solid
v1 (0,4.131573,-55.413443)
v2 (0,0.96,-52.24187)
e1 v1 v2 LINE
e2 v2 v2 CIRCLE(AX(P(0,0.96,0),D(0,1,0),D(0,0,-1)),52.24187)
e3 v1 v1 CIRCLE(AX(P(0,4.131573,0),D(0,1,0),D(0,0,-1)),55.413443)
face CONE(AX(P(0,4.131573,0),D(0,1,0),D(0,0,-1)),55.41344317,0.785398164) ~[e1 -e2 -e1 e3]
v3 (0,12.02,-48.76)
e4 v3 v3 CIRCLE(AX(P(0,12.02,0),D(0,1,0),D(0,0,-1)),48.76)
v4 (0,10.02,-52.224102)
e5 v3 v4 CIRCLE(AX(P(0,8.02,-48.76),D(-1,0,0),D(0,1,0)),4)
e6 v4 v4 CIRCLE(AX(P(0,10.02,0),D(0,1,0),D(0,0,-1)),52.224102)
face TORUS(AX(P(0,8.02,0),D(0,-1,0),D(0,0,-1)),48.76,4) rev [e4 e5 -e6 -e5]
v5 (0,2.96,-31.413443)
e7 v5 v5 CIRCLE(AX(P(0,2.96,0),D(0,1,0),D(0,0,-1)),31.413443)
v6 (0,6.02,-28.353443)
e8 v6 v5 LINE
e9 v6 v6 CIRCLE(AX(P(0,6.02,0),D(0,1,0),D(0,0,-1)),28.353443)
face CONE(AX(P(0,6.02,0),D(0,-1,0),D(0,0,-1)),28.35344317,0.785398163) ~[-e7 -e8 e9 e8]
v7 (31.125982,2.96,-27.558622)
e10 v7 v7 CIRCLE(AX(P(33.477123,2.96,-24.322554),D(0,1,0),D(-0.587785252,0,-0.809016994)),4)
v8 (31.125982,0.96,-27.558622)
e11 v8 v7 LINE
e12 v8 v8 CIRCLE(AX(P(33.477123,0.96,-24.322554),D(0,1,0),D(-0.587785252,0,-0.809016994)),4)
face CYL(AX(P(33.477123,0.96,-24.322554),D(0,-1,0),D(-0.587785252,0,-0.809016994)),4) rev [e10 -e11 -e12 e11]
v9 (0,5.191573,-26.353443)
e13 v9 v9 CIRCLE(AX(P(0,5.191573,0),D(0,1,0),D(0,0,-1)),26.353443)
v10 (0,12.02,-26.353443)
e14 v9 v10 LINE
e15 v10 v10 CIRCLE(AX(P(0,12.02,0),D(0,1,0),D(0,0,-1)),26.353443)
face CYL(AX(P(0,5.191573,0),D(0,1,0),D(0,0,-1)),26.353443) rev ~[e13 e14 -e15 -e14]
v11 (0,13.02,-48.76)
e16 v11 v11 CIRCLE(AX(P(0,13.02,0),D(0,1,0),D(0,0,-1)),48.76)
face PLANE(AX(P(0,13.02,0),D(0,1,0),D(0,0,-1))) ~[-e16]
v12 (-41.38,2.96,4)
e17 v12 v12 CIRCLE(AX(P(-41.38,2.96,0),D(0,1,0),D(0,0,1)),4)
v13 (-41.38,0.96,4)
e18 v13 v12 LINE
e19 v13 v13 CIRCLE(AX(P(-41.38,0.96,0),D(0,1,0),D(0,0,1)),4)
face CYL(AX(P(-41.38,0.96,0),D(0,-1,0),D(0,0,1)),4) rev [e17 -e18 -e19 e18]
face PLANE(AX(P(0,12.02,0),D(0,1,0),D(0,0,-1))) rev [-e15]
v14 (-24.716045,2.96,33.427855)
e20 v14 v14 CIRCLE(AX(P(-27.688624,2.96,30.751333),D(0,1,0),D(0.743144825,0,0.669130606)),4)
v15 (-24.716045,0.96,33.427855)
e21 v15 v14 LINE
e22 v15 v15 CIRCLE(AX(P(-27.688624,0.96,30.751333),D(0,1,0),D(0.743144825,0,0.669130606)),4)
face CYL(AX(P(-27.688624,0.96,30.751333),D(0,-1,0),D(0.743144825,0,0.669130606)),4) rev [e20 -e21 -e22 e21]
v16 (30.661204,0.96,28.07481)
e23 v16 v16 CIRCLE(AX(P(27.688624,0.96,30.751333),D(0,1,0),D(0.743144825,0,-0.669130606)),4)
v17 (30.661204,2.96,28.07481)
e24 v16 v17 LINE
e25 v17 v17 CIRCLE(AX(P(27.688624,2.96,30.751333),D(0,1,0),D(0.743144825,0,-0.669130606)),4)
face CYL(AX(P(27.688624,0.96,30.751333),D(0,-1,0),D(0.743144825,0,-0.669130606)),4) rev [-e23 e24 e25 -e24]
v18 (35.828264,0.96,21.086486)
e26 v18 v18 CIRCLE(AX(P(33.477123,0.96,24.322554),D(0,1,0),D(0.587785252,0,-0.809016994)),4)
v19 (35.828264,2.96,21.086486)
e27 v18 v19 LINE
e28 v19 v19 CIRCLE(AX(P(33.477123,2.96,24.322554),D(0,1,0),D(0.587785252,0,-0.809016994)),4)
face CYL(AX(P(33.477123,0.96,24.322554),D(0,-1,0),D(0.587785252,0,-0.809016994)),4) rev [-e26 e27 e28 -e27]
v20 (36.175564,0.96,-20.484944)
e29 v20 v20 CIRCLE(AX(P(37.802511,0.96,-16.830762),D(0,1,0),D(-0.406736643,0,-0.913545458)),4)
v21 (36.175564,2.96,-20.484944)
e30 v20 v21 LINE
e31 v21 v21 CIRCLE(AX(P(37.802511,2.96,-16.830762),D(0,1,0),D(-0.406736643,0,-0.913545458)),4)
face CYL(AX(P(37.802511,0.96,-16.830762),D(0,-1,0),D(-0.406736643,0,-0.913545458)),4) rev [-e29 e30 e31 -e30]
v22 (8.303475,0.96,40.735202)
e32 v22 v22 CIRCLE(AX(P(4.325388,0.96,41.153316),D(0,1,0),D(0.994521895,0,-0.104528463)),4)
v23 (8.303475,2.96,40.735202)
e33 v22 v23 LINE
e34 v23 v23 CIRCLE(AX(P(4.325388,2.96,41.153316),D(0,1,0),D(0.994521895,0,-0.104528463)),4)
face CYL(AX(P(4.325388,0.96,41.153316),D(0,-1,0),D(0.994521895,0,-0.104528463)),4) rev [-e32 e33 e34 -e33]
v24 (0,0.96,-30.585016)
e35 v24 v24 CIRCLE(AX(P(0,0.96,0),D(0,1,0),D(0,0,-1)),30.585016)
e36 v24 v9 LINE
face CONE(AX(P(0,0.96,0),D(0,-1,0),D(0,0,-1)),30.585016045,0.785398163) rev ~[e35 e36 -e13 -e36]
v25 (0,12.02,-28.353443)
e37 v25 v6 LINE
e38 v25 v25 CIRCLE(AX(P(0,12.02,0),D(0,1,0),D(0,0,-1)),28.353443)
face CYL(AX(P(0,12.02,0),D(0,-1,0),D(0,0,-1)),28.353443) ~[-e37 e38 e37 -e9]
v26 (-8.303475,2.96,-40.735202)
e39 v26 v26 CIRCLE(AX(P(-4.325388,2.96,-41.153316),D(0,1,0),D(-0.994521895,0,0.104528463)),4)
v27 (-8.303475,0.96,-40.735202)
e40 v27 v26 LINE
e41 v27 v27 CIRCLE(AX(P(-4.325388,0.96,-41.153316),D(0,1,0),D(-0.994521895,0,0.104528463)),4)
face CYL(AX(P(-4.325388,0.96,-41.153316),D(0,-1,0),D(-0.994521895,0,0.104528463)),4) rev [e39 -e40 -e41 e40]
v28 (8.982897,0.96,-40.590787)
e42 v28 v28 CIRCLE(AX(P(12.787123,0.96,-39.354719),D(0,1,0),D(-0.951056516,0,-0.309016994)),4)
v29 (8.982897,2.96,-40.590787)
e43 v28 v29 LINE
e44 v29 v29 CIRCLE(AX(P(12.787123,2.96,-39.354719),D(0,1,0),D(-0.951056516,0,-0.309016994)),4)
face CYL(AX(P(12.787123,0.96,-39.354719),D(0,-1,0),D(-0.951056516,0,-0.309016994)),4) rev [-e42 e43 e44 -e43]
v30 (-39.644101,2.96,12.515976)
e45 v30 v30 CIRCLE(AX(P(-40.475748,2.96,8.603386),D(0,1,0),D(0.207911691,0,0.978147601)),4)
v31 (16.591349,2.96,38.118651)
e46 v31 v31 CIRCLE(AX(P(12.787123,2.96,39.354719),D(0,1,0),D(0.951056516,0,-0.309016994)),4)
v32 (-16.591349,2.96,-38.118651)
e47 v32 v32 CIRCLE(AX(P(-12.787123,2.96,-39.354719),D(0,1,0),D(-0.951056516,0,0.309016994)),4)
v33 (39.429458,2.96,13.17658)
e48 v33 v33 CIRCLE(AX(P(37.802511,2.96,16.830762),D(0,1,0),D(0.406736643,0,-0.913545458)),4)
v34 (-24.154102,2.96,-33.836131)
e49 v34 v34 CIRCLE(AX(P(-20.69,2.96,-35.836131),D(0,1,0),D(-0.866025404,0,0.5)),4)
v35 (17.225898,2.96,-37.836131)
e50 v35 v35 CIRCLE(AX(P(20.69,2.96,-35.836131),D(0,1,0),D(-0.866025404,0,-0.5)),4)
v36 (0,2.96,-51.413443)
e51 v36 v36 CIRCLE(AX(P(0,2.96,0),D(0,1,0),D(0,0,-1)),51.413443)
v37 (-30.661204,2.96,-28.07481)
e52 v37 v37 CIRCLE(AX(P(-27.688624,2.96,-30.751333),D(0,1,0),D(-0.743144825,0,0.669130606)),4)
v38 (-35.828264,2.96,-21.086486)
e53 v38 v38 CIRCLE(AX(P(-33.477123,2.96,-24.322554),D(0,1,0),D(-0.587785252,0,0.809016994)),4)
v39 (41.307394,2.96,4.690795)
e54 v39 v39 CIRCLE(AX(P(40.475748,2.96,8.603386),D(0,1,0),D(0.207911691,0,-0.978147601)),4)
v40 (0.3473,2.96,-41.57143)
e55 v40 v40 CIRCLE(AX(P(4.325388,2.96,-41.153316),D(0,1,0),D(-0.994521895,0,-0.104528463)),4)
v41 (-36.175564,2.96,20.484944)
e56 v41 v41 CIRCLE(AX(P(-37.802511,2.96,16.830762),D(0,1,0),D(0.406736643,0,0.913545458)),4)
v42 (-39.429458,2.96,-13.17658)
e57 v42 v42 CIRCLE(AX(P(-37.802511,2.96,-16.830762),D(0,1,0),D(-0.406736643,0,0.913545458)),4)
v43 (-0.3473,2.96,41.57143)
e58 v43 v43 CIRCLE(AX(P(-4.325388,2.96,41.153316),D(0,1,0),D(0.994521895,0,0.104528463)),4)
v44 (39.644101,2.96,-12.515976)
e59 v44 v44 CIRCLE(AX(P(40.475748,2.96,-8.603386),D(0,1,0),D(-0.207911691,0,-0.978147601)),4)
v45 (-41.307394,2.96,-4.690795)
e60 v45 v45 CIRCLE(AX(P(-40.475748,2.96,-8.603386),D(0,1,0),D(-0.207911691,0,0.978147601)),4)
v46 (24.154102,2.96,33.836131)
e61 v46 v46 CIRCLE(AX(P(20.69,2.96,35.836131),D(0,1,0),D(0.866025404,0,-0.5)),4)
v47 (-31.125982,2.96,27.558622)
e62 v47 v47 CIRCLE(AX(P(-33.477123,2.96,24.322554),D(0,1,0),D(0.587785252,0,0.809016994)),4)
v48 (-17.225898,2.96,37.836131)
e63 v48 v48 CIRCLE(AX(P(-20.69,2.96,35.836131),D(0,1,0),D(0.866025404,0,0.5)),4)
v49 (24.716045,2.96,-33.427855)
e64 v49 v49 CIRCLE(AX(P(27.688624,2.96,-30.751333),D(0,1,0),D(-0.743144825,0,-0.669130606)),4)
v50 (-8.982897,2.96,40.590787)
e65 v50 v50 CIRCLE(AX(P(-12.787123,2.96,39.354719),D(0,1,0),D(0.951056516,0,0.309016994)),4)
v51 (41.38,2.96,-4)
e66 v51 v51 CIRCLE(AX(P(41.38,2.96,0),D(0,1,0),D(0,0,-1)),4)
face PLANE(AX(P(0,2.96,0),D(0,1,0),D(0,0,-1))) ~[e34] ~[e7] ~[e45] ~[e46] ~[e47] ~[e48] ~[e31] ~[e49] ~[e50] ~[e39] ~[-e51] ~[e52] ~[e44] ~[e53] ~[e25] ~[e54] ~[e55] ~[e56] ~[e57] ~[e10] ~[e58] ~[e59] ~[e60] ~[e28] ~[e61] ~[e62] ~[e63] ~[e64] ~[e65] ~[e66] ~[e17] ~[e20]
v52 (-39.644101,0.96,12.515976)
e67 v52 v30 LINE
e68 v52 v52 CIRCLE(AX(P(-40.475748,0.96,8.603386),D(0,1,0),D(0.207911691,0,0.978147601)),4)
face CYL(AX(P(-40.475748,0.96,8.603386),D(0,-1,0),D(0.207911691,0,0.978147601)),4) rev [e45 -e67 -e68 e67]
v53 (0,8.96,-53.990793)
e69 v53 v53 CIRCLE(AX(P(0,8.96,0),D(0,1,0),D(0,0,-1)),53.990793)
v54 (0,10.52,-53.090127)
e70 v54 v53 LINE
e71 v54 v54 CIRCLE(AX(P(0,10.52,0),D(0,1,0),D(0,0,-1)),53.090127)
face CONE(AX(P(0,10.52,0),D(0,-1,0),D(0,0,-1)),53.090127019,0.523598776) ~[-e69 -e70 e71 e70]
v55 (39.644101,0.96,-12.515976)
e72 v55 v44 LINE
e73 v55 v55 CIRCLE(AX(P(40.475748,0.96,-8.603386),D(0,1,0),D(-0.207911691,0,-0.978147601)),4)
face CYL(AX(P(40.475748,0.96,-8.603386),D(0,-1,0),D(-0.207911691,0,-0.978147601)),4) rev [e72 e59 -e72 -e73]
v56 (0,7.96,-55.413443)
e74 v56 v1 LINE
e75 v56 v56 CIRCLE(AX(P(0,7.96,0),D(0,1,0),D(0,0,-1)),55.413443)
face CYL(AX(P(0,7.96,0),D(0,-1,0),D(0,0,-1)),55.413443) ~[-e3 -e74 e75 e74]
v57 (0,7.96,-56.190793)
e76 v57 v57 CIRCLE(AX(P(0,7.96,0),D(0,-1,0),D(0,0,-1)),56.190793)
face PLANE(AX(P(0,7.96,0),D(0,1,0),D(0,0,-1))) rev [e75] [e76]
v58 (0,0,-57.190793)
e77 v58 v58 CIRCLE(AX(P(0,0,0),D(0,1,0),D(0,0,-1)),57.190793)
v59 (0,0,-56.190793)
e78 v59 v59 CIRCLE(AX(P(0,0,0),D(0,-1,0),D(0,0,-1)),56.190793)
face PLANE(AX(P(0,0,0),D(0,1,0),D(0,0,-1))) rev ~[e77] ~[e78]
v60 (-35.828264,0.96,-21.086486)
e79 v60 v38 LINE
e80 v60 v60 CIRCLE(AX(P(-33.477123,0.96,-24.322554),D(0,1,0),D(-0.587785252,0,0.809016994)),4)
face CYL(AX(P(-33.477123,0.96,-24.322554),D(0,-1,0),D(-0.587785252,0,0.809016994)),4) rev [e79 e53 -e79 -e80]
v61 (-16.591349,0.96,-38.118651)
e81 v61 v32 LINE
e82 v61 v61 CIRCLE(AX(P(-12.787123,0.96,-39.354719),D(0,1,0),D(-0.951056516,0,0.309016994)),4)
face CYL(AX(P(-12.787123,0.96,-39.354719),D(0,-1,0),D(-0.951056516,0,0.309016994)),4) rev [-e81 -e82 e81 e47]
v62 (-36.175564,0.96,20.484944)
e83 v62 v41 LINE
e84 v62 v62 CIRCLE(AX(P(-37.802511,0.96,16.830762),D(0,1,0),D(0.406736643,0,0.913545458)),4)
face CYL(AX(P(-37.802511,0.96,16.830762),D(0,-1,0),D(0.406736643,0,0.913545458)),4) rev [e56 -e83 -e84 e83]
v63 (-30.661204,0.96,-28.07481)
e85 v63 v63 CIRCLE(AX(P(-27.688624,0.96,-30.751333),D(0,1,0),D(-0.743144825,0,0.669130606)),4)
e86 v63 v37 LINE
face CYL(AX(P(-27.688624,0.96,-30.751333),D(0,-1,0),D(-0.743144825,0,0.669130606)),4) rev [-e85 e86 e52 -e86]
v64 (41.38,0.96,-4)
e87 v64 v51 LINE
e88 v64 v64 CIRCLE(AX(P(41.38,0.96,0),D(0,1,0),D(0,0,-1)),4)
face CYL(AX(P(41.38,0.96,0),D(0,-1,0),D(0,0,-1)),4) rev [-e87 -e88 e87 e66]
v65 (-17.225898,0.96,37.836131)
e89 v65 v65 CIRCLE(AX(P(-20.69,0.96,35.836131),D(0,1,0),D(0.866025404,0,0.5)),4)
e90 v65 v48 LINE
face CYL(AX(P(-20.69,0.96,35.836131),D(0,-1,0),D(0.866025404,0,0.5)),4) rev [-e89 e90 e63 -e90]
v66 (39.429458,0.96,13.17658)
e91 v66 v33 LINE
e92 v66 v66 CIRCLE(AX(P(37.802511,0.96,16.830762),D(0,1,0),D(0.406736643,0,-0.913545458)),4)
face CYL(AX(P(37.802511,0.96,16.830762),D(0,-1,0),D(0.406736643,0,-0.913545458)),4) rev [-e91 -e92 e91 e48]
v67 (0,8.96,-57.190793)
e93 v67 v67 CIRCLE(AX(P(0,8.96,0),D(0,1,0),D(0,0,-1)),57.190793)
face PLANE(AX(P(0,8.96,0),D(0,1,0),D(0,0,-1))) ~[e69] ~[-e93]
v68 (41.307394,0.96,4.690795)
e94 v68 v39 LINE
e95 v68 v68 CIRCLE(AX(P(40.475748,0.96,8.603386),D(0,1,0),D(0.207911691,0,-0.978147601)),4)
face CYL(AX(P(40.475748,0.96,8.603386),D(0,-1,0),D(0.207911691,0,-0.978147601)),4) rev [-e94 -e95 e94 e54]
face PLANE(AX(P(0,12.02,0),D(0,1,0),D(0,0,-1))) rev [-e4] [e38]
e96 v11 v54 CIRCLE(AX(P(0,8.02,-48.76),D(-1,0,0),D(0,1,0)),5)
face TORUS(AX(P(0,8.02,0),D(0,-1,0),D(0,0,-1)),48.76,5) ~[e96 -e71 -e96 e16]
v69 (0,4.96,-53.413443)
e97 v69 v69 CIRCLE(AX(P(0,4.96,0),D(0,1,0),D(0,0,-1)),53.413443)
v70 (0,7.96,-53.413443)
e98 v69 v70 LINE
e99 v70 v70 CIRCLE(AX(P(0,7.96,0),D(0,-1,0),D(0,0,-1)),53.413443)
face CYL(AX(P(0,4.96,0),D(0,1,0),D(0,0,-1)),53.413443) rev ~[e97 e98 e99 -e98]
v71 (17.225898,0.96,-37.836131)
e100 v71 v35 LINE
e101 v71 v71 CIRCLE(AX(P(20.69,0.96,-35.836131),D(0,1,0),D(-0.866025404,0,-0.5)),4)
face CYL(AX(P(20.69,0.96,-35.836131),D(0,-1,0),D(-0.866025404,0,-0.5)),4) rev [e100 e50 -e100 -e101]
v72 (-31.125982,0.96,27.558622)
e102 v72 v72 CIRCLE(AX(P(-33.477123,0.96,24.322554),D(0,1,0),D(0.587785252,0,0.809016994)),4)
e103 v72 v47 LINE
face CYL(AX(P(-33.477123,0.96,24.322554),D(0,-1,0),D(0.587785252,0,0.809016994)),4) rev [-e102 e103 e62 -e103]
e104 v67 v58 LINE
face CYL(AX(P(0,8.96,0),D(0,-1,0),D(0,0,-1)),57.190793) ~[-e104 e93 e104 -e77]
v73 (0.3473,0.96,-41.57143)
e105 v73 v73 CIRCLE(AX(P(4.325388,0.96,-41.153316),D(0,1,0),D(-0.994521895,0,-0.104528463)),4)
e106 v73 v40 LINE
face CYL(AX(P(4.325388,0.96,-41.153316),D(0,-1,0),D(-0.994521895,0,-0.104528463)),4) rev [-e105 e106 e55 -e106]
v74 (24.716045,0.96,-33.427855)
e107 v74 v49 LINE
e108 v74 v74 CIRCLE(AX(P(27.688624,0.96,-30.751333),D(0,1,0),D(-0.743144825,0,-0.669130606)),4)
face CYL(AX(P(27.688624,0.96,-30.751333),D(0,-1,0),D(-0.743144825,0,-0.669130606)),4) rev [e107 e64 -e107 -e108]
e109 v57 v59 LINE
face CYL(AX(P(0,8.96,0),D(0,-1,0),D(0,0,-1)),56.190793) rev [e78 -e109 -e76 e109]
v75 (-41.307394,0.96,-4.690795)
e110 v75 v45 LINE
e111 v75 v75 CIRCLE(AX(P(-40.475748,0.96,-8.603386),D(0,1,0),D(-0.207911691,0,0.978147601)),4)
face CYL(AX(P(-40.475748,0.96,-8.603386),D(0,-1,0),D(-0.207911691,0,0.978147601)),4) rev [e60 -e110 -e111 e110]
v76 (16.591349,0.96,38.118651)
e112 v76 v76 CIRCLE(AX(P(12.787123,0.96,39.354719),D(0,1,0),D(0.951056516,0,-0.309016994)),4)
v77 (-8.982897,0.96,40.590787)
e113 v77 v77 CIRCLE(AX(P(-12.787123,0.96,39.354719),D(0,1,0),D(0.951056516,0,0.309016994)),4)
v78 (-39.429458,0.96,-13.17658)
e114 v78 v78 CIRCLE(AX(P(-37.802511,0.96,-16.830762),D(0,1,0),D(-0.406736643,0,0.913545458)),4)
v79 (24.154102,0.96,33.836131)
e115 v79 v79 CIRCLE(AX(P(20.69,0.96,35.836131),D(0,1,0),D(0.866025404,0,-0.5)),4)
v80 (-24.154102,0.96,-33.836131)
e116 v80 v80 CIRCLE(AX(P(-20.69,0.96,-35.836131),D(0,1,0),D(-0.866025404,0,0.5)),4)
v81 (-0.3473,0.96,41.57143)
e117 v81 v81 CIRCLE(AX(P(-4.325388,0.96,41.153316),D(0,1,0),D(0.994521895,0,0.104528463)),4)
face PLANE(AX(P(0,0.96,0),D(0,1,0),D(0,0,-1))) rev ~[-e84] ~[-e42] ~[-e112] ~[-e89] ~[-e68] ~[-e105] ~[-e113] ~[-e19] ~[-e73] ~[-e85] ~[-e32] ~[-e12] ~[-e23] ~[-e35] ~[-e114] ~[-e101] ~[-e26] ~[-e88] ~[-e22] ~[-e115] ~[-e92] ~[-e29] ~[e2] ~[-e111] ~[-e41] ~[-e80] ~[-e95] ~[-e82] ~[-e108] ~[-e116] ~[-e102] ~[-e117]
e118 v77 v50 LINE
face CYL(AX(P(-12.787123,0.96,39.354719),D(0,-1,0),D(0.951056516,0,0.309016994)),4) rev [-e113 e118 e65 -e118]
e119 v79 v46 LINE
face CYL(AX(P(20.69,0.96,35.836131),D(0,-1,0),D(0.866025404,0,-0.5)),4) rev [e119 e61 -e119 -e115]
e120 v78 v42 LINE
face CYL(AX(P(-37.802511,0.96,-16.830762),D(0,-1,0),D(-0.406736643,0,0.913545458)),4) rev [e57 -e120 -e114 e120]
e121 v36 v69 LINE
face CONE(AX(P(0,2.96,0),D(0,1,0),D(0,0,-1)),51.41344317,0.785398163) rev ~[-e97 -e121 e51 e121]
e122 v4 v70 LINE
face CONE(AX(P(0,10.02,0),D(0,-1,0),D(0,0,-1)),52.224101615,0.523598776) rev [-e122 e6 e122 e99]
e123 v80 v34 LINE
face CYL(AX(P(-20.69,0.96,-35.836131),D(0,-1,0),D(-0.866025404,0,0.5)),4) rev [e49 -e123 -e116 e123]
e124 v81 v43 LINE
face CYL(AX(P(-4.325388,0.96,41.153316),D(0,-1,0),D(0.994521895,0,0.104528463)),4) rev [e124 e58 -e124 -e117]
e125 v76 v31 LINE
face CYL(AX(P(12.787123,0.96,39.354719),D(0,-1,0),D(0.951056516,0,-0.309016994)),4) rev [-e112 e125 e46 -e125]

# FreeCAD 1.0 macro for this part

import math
import FreeCAD as App
import Part
import Sketcher
Q = App.Units.Quantity


def faces_at(feature, points):
    """Names of the faces that lie closest to the given points."""
    faces = feature.Shape.Faces
    near = lambda p: min(range(len(faces)), key=lambda i: faces[i].distToShape(Part.Vertex(*p))[0])
    return sorted({f"Face{near(p) + 1}" for p in points})


def add_polygon(sketch, points):
    """Adds a closed chain of lines whose ends are joined by coincident constraints."""
    first, n = sketch.GeometryCount, len(points)
    for a, b in zip(points, points[1:] + points[:1]):
        sketch.addGeometry(Part.LineSegment(App.Vector(*a, 0), App.Vector(*b, 0)), False)
    for i in range(n):
        sketch.addConstraint(Sketcher.Constraint("Coincident", first + i, 2, first + (i + 1) % n, 1))

doc = App.newDocument("Part")
body = doc.addObject("PartDesign::Body", "Body")

# Sketch on YZ plane
sketch1 = doc.addObject("Sketcher::SketchObject", "Sketch")
body.addObject(sketch1)
sketch1.AttachmentSupport = (doc.YZ_Plane, [""])
sketch1.MapMode = "FlatFace"
sketch1.addGeometry([
    Part.LineSegment(App.Vector(0, 0, 0), App.Vector(13.02, 0, 0)),  # 0
    Part.LineSegment(App.Vector(13.02, 0, 0), App.Vector(13.02, 48.76, 0)),  # 1
    Part.ArcOfCircle(Part.Circle(App.Vector(8.02, 48.76, 0), App.Vector(0, 0, 1), 5), math.radians(0), math.radians(60)),  # 2
    Part.LineSegment(App.Vector(10.52, 53.090127, 0), App.Vector(8.96, 53.990793, 0)),  # 3
    Part.LineSegment(App.Vector(8.96, 53.990793, 0), App.Vector(8.96, 57.190793, 0)),  # 4
    Part.LineSegment(App.Vector(8.96, 57.190793, 0), App.Vector(0, 57.190793, 0)),  # 5
    Part.LineSegment(App.Vector(0, 57.190793, 0), App.Vector(0, 0, 0)),  # 6
], False)
sketch1.addConstraint([
    Sketcher.Constraint("Coincident", 0, 2, 1, 1),
    Sketcher.Constraint("Tangent", 1, 2, 2, 1),
    Sketcher.Constraint("Tangent", 2, 2, 3, 1),
    Sketcher.Constraint("Coincident", 3, 2, 4, 1),
    Sketcher.Constraint("Coincident", 4, 2, 5, 1),
    Sketcher.Constraint("Coincident", 5, 2, 6, 1),
    Sketcher.Constraint("Coincident", 6, 2, 0, 1),
    Sketcher.Constraint("Horizontal", 0),
    Sketcher.Constraint("Vertical", 1),
    Sketcher.Constraint("Vertical", 4),
    Sketcher.Constraint("Horizontal", 5),
    Sketcher.Constraint("Vertical", 6),
    Sketcher.Constraint("Coincident", 6, 2, -1, 1),
    Sketcher.Constraint("Radius", 2, 5.0),
    Sketcher.Constraint("Angle", 3, Q("150 deg")),
    Sketcher.Constraint("DistanceY", 4, 1, 4, 2, 3.2),
    Sketcher.Constraint("DistanceX", 0, 1, 0, 2, 13.02),
    Sketcher.Constraint("DistanceX", 5, 2, 5, 1, 8.96),
    Sketcher.Constraint("DistanceY", 1, 1, 1, 2, 48.76),
])
revolution = doc.addObject("PartDesign::Revolution", "Revolution")
body.addObject(revolution)
revolution.Profile = sketch1
revolution.ReferenceAxis = (sketch1, ["H_Axis"])
revolution.Angle = 360
doc.recompute()

thickness = doc.addObject("PartDesign::Thickness", "Thickness")
body.addObject(thickness)
thickness.Base = (revolution, faces_at(revolution, [(0, 0, 0)]))
thickness.Value = 1
thickness.Reversed = True
thickness.Join = "Intersection"

# Sketch on YZ plane
sketch2 = doc.addObject("Sketcher::SketchObject", "Sketch001")
body.addObject(sketch2)
sketch2.AttachmentSupport = (doc.YZ_Plane, [""])
sketch2.MapMode = "FlatFace"
add_polygon(sketch2, [(4.96, 53.413443), (7.96, 53.413443), (7.96, 55.413443), (4.131573, 55.413443), (0.96, 52.24187), (0.96, 30.585016), (5.191573, 26.353443), (12.02, 26.353443), (12.02, 28.353443), (6.02, 28.353443), (2.96, 31.413443), (2.96, 51.413443)])  # lines 0-11
sketch2.addConstraint([
    Sketcher.Constraint("Horizontal", 0),
    Sketcher.Constraint("Vertical", 1),
    Sketcher.Constraint("Horizontal", 2),
    Sketcher.Constraint("Vertical", 4),
    Sketcher.Constraint("Horizontal", 6),
    Sketcher.Constraint("Vertical", 7),
    Sketcher.Constraint("Horizontal", 8),
    Sketcher.Constraint("Vertical", 10),
    Sketcher.Constraint("Perpendicular", 3, 5),
    Sketcher.Constraint("Parallel", 5, 9),
    Sketcher.Constraint("Perpendicular", 9, 11),
    Sketcher.Constraint("Equal", 1, 7),
    Sketcher.Constraint("DistanceX", 0, 1, 0, 2, 3.0),
    Sketcher.Constraint("DistanceX", 8, 2, 8, 1, 6.0),
    Sketcher.Constraint("DistanceY", 1, 1, 1, 2, 2.0),
    Sketcher.Constraint("DistanceY", 10, 1, 10, 2, 20.0),
    Sketcher.Constraint("Angle", 3, Q("-135 deg")),
    Sketcher.Constraint("DistanceX", 3, 2, 0, 2, 7.0),
    Sketcher.Constraint("DistanceX", 4, 2, 9, 2, 2.0),
    Sketcher.Constraint("DistanceX", -1, 1, 0, 2, 7.96),
    Sketcher.Constraint("DistanceX", -1, 1, 6, 2, 12.02),
    Sketcher.Constraint("DistanceX", 2, 2, 5, 2, 1.06),
    Sketcher.Constraint("Distance", 3, 4.485281),
    Sketcher.Constraint("DistanceY", -1, 1, 3, 2, 52.24187),
])
revolution2 = doc.addObject("PartDesign::Revolution", "Revolution001")
body.addObject(revolution2)
revolution2.Profile = sketch2
revolution2.ReferenceAxis = (sketch2, ["H_Axis"])
revolution2.Angle = 360

# Sketch on XZ plane
sketch3 = doc.addObject("Sketcher::SketchObject", "Sketch002")
body.addObject(sketch3)
sketch3.AttachmentSupport = (doc.XZ_Plane, [""])
sketch3.MapMode = "FlatFace"
sketch3.AttachmentOffset = App.Placement(App.Vector(0, 0, -0.96), App.Rotation())
sketch3.addGeometry(Part.Circle(App.Vector(-41.38, 0, 0), App.Vector(0, 0, 1), 4), False)
sketch3.addConstraint([
    Sketcher.Constraint("PointOnObject", 0, 3, -1),
    Sketcher.Constraint("Diameter", 0, 8.0),
    Sketcher.Constraint("DistanceX", 0, 3, -1, 1, 41.38),
])
pocket1 = doc.addObject("PartDesign::Pocket", "Pocket")
body.addObject(pocket1)
pocket1.Profile = sketch3
pocket1.Length = 2
doc.recompute()

polarpattern = doc.addObject("PartDesign::PolarPattern", "PolarPattern")
body.addObject(polarpattern)
polarpattern.Originals = [pocket1]
polarpattern.Axis = (doc.Y_Axis, [""])
polarpattern.Angle = 360
polarpattern.Occurrences = 30
body.Tip = polarpattern

doc.recompute()
